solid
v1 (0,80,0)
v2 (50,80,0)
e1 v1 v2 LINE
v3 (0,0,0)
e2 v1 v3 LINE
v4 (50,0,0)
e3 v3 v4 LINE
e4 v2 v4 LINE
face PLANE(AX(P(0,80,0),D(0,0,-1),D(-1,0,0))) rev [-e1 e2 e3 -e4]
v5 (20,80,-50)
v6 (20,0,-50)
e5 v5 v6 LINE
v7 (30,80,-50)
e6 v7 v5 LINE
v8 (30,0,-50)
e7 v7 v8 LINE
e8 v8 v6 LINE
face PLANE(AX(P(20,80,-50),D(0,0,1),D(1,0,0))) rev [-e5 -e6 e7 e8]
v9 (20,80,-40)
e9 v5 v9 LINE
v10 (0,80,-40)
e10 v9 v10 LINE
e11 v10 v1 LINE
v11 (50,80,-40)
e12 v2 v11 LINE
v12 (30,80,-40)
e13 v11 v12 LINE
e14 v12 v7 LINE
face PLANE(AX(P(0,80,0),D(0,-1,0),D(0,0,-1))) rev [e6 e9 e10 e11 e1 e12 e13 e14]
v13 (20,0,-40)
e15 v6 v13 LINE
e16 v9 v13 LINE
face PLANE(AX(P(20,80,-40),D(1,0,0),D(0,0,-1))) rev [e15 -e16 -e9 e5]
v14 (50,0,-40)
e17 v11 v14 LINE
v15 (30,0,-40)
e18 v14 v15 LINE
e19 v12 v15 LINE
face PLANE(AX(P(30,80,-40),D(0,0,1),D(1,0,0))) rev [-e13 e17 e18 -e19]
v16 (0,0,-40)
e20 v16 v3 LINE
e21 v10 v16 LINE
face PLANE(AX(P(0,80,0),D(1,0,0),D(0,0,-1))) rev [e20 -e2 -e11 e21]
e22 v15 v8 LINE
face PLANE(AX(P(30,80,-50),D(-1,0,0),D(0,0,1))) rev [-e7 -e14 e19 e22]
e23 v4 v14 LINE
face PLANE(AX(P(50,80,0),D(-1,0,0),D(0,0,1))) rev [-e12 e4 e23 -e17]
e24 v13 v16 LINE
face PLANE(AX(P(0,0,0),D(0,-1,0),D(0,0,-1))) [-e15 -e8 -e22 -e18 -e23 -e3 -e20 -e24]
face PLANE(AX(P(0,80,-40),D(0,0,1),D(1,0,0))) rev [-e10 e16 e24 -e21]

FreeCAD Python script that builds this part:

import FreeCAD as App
import Part
import Sketcher
from FreeCAD import Vector
Q = App.Units.Quantity


def add_polygon(sketch, points):
    """Adds a closed chain of lines whose ends are joined by coincident constraints."""
    first, n = sketch.GeometryCount, len(points)
    for a, b in zip(points, points[1:] + points[:1]):
        sketch.addGeometry(Part.LineSegment(App.Vector(*a, 0), App.Vector(*b, 0)), False)
    for i in range(n):
        sketch.addConstraint(Sketcher.Constraint("Coincident", first + i, 2, first + (i + 1) % n, 1))

doc = App.newDocument("Part")
params = doc.addObject("Spreadsheet::Sheet", "Params")
for row, (alias, value) in enumerate([
    ("sketch1_width", "20 mm"),
    ("sketch1_width2", "50 mm"),
    ("sketch1_height", "40 mm"),
    ("pad1_length", "80 mm"),
], start=1):
    params.set(f"A{row}", alias)
    params.set(f"B{row}", "=" + value)
    params.setAlias(f"B{row}", alias)

body = doc.addObject("PartDesign::Body", "Body")

# Sketch on XZ plane
sketch1 = body.newObject("Sketcher::SketchObject", "Sketch")
sketch1.AttachmentSupport = (doc.getObject("XZ_Plane"), [""])
sketch1.MapMode = "FlatFace"
add_polygon(sketch1, [(20, -40), (0, -40), (0, 0), (50, 0), (50, -40), (30, -40), (30, -50), (20, -50)])  # lines 0-7
sketch1.addConstraint([
    Sketcher.Constraint("Horizontal", 0),
    Sketcher.Constraint("Vertical", 1),
    Sketcher.Constraint("Horizontal", 2),
    Sketcher.Constraint("Vertical", 3),
    Sketcher.Constraint("Horizontal", 4),
    Sketcher.Constraint("Vertical", 5),
    Sketcher.Constraint("Horizontal", 6),
    Sketcher.Constraint("Vertical", 7),
    Sketcher.Constraint("Coincident", 1, 2, -1, 1),
    Sketcher.Constraint("Horizontal", 0, 2, 3, 2),
    Sketcher.Constraint("Equal", 0, 4),
    Sketcher.Constraint("Equal", 6, 5),
    Sketcher.Constraint("DistanceX", 0, 2, 0, 1, Q("20 mm")),
    Sketcher.Constraint("DistanceX", 2, 1, 2, 2, Q("50 mm")),
    Sketcher.Constraint("DistanceY", 1, 1, 1, 2, Q("40 mm")),
])
sketch1.setExpression("Constraints[20]", "Params.sketch1_width")
sketch1.setExpression("Constraints[21]", "Params.sketch1_width2")
sketch1.setExpression("Constraints[22]", "Params.sketch1_height")
pad1 = body.newObject("PartDesign::Pad", "Pad")
pad1.Profile = sketch1
pad1.setExpression("Length", "Params.pad1_length")
pad1.Reversed = True

doc.recompute()
